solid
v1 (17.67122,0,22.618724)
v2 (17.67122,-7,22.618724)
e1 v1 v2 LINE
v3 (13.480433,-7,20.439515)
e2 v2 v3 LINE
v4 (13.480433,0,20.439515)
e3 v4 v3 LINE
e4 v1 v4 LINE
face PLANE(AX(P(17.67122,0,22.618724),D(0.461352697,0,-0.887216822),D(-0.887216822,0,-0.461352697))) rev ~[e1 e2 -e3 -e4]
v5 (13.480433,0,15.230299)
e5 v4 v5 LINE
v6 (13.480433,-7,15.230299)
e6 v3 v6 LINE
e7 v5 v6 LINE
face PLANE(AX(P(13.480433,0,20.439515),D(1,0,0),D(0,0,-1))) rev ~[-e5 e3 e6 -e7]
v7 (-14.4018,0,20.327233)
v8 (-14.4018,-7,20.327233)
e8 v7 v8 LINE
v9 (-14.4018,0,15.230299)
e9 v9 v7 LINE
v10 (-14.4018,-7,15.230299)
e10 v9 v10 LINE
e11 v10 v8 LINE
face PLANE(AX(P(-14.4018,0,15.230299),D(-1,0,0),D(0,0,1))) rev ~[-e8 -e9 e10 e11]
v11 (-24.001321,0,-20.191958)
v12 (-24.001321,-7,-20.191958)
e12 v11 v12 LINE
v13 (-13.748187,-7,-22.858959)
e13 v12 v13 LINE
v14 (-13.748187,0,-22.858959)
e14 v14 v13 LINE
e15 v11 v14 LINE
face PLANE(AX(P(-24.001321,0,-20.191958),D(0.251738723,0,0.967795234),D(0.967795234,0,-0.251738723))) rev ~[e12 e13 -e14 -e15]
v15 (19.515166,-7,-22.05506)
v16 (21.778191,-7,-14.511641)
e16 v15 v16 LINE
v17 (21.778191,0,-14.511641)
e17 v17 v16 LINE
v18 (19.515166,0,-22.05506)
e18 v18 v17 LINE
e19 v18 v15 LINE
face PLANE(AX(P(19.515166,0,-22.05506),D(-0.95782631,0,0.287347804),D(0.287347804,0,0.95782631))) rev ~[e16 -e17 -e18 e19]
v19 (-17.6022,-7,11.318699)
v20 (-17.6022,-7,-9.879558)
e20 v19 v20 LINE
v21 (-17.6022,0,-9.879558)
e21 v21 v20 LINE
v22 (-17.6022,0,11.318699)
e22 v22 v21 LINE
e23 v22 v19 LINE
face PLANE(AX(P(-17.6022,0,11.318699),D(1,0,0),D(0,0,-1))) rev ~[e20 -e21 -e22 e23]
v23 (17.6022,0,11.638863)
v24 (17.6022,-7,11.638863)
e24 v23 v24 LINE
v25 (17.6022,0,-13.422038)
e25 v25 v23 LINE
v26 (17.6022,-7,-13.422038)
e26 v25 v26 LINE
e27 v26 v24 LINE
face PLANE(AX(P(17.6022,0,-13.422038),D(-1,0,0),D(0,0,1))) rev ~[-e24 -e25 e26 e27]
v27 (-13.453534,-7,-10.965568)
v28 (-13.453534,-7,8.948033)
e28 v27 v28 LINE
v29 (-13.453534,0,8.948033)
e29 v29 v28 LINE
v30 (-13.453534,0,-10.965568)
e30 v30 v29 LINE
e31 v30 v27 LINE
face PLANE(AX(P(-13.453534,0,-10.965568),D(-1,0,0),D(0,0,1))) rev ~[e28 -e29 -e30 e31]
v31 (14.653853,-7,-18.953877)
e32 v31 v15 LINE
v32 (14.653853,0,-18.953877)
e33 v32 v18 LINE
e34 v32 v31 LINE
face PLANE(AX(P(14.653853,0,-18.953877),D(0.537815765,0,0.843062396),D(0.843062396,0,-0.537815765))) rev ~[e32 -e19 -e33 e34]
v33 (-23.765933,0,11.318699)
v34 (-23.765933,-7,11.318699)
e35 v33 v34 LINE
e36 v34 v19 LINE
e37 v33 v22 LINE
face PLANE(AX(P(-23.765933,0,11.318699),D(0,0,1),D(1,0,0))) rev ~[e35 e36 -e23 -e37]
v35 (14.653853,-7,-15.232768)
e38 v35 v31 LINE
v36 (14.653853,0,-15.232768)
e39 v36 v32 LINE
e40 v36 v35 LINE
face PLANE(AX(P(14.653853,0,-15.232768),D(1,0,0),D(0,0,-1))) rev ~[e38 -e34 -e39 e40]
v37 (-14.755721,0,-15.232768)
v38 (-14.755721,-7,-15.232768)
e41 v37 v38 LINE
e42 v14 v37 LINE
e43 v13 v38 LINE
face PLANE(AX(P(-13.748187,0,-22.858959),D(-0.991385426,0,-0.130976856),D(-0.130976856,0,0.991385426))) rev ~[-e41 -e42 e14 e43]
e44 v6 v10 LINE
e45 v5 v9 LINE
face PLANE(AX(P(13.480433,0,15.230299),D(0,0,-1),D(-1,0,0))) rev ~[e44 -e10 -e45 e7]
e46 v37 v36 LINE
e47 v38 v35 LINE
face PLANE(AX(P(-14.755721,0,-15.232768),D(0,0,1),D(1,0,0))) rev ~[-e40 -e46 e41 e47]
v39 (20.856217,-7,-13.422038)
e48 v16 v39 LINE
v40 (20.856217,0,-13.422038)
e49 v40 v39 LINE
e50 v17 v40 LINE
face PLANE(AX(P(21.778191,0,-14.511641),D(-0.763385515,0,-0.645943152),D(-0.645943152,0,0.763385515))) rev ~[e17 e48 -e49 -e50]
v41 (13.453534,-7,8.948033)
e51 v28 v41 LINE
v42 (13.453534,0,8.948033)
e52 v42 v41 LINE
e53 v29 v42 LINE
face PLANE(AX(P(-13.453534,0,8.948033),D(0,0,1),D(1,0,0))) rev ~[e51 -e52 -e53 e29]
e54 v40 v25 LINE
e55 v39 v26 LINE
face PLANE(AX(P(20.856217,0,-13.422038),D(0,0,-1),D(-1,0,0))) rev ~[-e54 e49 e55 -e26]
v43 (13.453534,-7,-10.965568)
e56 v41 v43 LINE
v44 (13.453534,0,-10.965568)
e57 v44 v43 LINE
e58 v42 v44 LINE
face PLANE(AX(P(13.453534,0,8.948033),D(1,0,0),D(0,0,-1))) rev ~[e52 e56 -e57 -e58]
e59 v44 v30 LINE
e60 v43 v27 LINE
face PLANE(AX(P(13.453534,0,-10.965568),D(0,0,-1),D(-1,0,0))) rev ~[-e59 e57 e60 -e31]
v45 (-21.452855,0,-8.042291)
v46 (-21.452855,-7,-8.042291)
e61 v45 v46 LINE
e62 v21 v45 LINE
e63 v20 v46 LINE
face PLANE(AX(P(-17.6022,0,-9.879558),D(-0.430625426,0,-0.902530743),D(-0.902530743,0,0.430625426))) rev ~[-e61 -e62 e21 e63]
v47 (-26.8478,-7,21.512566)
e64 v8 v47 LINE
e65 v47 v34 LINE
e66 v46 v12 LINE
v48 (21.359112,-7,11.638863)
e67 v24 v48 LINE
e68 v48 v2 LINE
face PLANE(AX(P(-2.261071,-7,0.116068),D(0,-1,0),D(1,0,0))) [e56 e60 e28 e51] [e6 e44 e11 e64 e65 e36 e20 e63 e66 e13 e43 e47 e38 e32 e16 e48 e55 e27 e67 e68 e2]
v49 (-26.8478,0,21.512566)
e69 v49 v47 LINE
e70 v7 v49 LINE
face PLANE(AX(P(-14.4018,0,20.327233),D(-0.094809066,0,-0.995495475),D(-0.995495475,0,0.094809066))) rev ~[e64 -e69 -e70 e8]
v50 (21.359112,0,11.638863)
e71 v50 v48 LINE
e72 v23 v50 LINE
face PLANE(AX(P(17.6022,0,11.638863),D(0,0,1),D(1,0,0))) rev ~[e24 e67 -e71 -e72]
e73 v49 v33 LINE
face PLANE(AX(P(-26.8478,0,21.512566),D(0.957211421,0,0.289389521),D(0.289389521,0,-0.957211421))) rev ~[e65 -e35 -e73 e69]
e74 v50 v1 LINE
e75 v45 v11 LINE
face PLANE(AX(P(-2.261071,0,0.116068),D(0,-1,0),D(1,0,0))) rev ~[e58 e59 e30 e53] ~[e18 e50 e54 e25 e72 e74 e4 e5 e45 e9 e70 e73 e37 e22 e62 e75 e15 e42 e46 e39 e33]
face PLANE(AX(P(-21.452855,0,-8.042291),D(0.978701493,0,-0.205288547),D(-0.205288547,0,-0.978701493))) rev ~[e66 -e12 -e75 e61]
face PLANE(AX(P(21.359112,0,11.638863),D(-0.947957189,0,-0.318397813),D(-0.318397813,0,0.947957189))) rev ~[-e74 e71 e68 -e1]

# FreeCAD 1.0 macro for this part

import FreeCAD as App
import Part
import Sketcher

V = App.Vector

doc = App.newDocument("Part")
body = doc.addObject("PartDesign::Body", "Body")

sketch1 = body.newObject("Sketcher::SketchObject", "Sketch")
sketch1.AttachmentSupport = (doc.getObject("XZ_Plane"), [""])
sketch1.MapMode = "FlatFace"
sketch1.addGeometry([
    Part.LineSegment(V(13.480433, 15.230299, 0), V(-14.4018, 15.230299, 0)),
    Part.LineSegment(V(-14.4018, 15.230299, 0), V(-14.4018, 20.327233, 0)),
    Part.LineSegment(V(-14.4018, 20.327233, 0), V(-26.8478, 21.512566, 0)),
    Part.LineSegment(V(-26.8478, 21.512566, 0), V(-23.765933, 11.318699, 0)),
    Part.LineSegment(V(-23.765933, 11.318699, 0), V(-17.6022, 11.318699, 0)),
    Part.LineSegment(V(-17.6022, 11.318699, 0), V(-17.6022, -9.879558, 0)),
    Part.LineSegment(V(-17.6022, -9.879558, 0), V(-21.452855, -8.042291, 0)),
    Part.LineSegment(V(-21.452855, -8.042291, 0), V(-24.001321, -20.191958, 0)),
    Part.LineSegment(V(-24.001321, -20.191958, 0), V(-13.748187, -22.858959, 0)),
    Part.LineSegment(V(-13.748187, -22.858959, 0), V(-14.755721, -15.232768, 0)),
    Part.LineSegment(V(-14.755721, -15.232768, 0), V(14.653853, -15.232768, 0)),
    Part.LineSegment(V(14.653853, -15.232768, 0), V(14.653853, -18.953877, 0)),
    Part.LineSegment(V(14.653853, -18.953877, 0), V(19.515166, -22.05506, 0)),
    Part.LineSegment(V(19.515166, -22.05506, 0), V(21.778191, -14.511641, 0)),
    Part.LineSegment(V(21.778191, -14.511641, 0), V(20.856217, -13.422038, 0)),
    Part.LineSegment(V(20.856217, -13.422038, 0), V(17.6022, -13.422038, 0)),
    Part.LineSegment(V(17.6022, -13.422038, 0), V(17.6022, 11.638863, 0)),
    Part.LineSegment(V(17.6022, 11.638863, 0), V(21.359112, 11.638863, 0)),
    Part.LineSegment(V(21.359112, 11.638863, 0), V(17.67122, 22.618724, 0)),
    Part.LineSegment(V(17.67122, 22.618724, 0), V(13.480433, 20.439515, 0)),
    Part.LineSegment(V(13.480433, 20.439515, 0), V(13.480433, 15.230299, 0)),
    Part.LineSegment(V(-13.453534, -10.965568, 0), V(-13.453534, 8.948033, 0)),
    Part.LineSegment(V(-13.453534, 8.948033, 0), V(13.453534, 8.948033, 0)),
    Part.LineSegment(V(13.453534, 8.948033, 0), V(13.453534, -10.965568, 0)),
    Part.LineSegment(V(13.453534, -10.965568, 0), V(-13.453534, -10.965568, 0)),
], False)
sketch1.addConstraint([
    Sketcher.Constraint("Coincident", 0, 2, 1, 1),
    Sketcher.Constraint("Coincident", 1, 2, 2, 1),
    Sketcher.Constraint("Coincident", 2, 2, 3, 1),
    Sketcher.Constraint("Coincident", 3, 2, 4, 1),
    Sketcher.Constraint("Coincident", 4, 2, 5, 1),
    Sketcher.Constraint("Coincident", 5, 2, 6, 1),
    Sketcher.Constraint("Coincident", 6, 2, 7, 1),
    Sketcher.Constraint("Coincident", 7, 2, 8, 1),
    Sketcher.Constraint("Coincident", 8, 2, 9, 1),
    Sketcher.Constraint("Coincident", 9, 2, 10, 1),
    Sketcher.Constraint("Coincident", 10, 2, 11, 1),
    Sketcher.Constraint("Coincident", 11, 2, 12, 1),
    Sketcher.Constraint("Coincident", 12, 2, 13, 1),
    Sketcher.Constraint("Coincident", 13, 2, 14, 1),
    Sketcher.Constraint("Coincident", 14, 2, 15, 1),
    Sketcher.Constraint("Coincident", 15, 2, 16, 1),
    Sketcher.Constraint("Coincident", 16, 2, 17, 1),
    Sketcher.Constraint("Coincident", 17, 2, 18, 1),
    Sketcher.Constraint("Coincident", 18, 2, 19, 1),
    Sketcher.Constraint("Coincident", 19, 2, 20, 1),
    Sketcher.Constraint("Coincident", 20, 2, 0, 1),
    Sketcher.Constraint("Coincident", 21, 2, 22, 1),
    Sketcher.Constraint("Coincident", 22, 2, 23, 1),
    Sketcher.Constraint("Coincident", 23, 2, 24, 1),
    Sketcher.Constraint("Coincident", 24, 2, 21, 1),
    Sketcher.Constraint("Horizontal", 0),
    Sketcher.Constraint("Vertical", 1),
    Sketcher.Constraint("Horizontal", 4),
    Sketcher.Constraint("Vertical", 5),
    Sketcher.Constraint("Horizontal", 10),
    Sketcher.Constraint("Vertical", 11),
    Sketcher.Constraint("Horizontal", 15),
    Sketcher.Constraint("Vertical", 16),
    Sketcher.Constraint("Horizontal", 17),
    Sketcher.Constraint("Vertical", 20),
    Sketcher.Constraint("Vertical", 21),
    Sketcher.Constraint("Horizontal", 22),
    Sketcher.Constraint("Vertical", 23),
    Sketcher.Constraint("Horizontal", 24),
    Sketcher.Constraint("DistanceY", 16, 1, 16, 2, 25.060901),
    Sketcher.Constraint("DistanceY", 21, 1, 21, 2, 19.913601),
    Sketcher.Constraint("DistanceX", 2, 2, 1, 2, 12.446),
    Sketcher.Constraint("DistanceY", 8, 2, 7, 2, 2.667001),
    Sketcher.Constraint("DistanceX", 17, 1, 17, 2, 3.756912),
    Sketcher.Constraint("DistanceY", 11, 2, 11, 1, 3.721109),
    Sketcher.Constraint("DistanceX", 0, 2, -1, 1, 14.4018),
    Sketcher.Constraint("DistanceY", -1, 1, 0, 2, 15.230299),
    Sketcher.Constraint("DistanceY", -1, 1, 3, 2, 11.318699),
    Sketcher.Constraint("DistanceX", 4, 2, -1, 1, 17.6022),
    Sketcher.Constraint("DistanceX", -1, 1, 15, 2, 17.6022),
    Sketcher.Constraint("DistanceY", 7, 2, 5, 2, 10.3124),
    Sketcher.Constraint("DistanceX", 7, 2, 9, 2, 9.2456),
    Sketcher.Constraint("DistanceY", 8, 2, 12, 2, 0.803899),
    Sketcher.Constraint("DistanceX", 3, 2, 21, 2, 10.312399),
    Sketcher.Constraint("DistanceY", 21, 2, 1, 2, 11.3792),
    Sketcher.Constraint("DistanceX", 22, 2, 20, 2, 0.026899),
    Sketcher.Constraint("DistanceY", 10, 2, 23, 2, 4.2672),
    Sketcher.Constraint("Distance", 6, 4.266508),
    Sketcher.Constraint("Distance", 7, 12.414068),
    Sketcher.Constraint("Distance", 8, 10.594322),
    Sketcher.Constraint("Distance", 9, 7.692458),
    Sketcher.Constraint("Distance", 13, 7.87556),
    Sketcher.Constraint("Distance", 14, 1.42733),
    Sketcher.Constraint("Distance", 19, 4.723521),
    Sketcher.Constraint("DistanceX", 0, 2, 0, 1, 27.882233),
    Sketcher.Constraint("DistanceX", 4, 1, 4, 2, 6.163733),
    Sketcher.Constraint("DistanceX", 10, 1, 10, 2, 29.409574),
    Sketcher.Constraint("DistanceX", 15, 2, 15, 1, 3.254017),
    Sketcher.Constraint("DistanceY", 1, 1, 1, 2, 5.096934),
    Sketcher.Constraint("DistanceY", 20, 2, 20, 1, 5.209216),
    Sketcher.Constraint("DistanceY", 6, 2, -1, 1, 8.042291),
    Sketcher.Constraint("DistanceX", -1, 1, 13, 2, 21.778191),
    Sketcher.Constraint("DistanceY", 13, 2, -1, 1, 14.511641),
    Sketcher.Constraint("DistanceX", -1, 1, 18, 2, 17.67122),
    Sketcher.Constraint("Distance", 2, 12.502317),
])
pad1 = body.newObject("PartDesign::Pad", "Pad")
pad1.Profile = sketch1
pad1.Length = 7

doc.recompute()
